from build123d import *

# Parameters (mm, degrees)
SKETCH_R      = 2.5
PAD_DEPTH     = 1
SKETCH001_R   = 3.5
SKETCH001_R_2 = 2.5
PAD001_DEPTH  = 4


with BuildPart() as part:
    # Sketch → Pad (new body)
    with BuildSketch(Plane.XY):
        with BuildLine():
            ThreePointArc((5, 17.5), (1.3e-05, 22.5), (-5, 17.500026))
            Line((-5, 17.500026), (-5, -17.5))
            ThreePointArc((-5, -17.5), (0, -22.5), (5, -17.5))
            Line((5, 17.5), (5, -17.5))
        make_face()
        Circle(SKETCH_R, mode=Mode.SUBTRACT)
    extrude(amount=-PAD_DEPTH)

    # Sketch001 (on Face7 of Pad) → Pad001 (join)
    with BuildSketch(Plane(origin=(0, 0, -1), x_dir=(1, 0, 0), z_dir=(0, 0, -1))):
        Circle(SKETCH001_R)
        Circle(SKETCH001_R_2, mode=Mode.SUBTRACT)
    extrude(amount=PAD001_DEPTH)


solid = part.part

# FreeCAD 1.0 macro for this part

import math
import FreeCAD as App
import Part
import Sketcher
from FreeCAD import Vector
Q = App.Units.Quantity

doc = App.newDocument("Part")
body = doc.addObject("PartDesign::Body", "Body")

sketch1 = body.newObject("Sketcher::SketchObject", "Sketch")
sketch1.AttachmentSupport = (doc.getObject("XY_Plane"), [""])
sketch1.MapMode = "FlatFace"
sketch1.addGeometry(Part.ArcOfCircle(Part.Circle(Vector(0, 17.5, 0), Vector(0, 0, 1), 5), math.radians(0), math.radians(180)), False)
sketch1.addGeometry(Part.LineSegment(Vector(-5, 17.5, 0), Vector(-5, -17.5, 0)), False)
sketch1.addGeometry(Part.ArcOfCircle(Part.Circle(Vector(0, -17.5, 0), Vector(0, 0, 1), 5), math.radians(180), math.radians(360)), False)
sketch1.addGeometry(Part.LineSegment(Vector(5, -17.5, 0), Vector(5, 17.5, 0)), False)
sketch1.addGeometry(Part.Circle(Vector(0, 0, 0), Vector(0, 0, 1), 2.5), False)
sketch1.addConstraint(Sketcher.Constraint("Coincident", 0, 2, 1, 1))
sketch1.addConstraint(Sketcher.Constraint("Tangent", 1, 2, 2, 1))
sketch1.addConstraint(Sketcher.Constraint("Tangent", 2, 2, 3, 1))
sketch1.addConstraint(Sketcher.Constraint("Tangent", 3, 2, 0, 1))
sketch1.addConstraint(Sketcher.Constraint("Vertical", 1))
sketch1.addConstraint(Sketcher.Constraint("Vertical", 3))
sketch1.addConstraint(Sketcher.Constraint("Coincident", 4, 3, -1, 1))
sketch1.addConstraint(Sketcher.Constraint("Symmetric", 0, 3, 2, 3, -1, 1))
sketch1.addConstraint(Sketcher.Constraint("Diameter", 4, Q("5 mm")))
sketch1.addConstraint(Sketcher.Constraint("Radius", 0, Q("5 mm")))
sketch1.addConstraint(Sketcher.Constraint("DistanceY", 3, 1, 3, 2, Q("35 mm")))
sketch1.addConstraint(Sketcher.Constraint("DistanceY", 1, 2, 1, 1, Q("35.000026 mm")))
pad1 = body.newObject("PartDesign::Pad", "Pad")
pad1.Profile = sketch1
pad1.Length = 1
pad1.Reversed = True

sketch2 = body.newObject("Sketcher::SketchObject", "Sketch001")
sketch2.AttachmentSupport = (doc.getObject("XY_Plane"), [""])
sketch2.MapMode = "FlatFace"
sketch2.AttachmentOffset = App.Placement(Vector(0, 0, -1), App.Rotation())
sketch2.addGeometry(Part.Circle(Vector(0, 0, 0), Vector(0, 0, 1), 3.5), False)
sketch2.addGeometry(Part.Circle(Vector(0, 0, 0), Vector(0, 0, 1), 2.5), False)
sketch2.addConstraint(Sketcher.Constraint("Coincident", 0, 3, -1, 1))
sketch2.addConstraint(Sketcher.Constraint("Coincident", 1, 3, -1, 1))
sketch2.addConstraint(Sketcher.Constraint("Diameter", 0, Q("7 mm")))
sketch2.addConstraint(Sketcher.Constraint("Diameter", 1, Q("5 mm")))
pad2 = body.newObject("PartDesign::Pad", "Pad001")
pad2.Profile = sketch2
pad2.Length = 4
pad2.Reversed = True

doc.recompute()
